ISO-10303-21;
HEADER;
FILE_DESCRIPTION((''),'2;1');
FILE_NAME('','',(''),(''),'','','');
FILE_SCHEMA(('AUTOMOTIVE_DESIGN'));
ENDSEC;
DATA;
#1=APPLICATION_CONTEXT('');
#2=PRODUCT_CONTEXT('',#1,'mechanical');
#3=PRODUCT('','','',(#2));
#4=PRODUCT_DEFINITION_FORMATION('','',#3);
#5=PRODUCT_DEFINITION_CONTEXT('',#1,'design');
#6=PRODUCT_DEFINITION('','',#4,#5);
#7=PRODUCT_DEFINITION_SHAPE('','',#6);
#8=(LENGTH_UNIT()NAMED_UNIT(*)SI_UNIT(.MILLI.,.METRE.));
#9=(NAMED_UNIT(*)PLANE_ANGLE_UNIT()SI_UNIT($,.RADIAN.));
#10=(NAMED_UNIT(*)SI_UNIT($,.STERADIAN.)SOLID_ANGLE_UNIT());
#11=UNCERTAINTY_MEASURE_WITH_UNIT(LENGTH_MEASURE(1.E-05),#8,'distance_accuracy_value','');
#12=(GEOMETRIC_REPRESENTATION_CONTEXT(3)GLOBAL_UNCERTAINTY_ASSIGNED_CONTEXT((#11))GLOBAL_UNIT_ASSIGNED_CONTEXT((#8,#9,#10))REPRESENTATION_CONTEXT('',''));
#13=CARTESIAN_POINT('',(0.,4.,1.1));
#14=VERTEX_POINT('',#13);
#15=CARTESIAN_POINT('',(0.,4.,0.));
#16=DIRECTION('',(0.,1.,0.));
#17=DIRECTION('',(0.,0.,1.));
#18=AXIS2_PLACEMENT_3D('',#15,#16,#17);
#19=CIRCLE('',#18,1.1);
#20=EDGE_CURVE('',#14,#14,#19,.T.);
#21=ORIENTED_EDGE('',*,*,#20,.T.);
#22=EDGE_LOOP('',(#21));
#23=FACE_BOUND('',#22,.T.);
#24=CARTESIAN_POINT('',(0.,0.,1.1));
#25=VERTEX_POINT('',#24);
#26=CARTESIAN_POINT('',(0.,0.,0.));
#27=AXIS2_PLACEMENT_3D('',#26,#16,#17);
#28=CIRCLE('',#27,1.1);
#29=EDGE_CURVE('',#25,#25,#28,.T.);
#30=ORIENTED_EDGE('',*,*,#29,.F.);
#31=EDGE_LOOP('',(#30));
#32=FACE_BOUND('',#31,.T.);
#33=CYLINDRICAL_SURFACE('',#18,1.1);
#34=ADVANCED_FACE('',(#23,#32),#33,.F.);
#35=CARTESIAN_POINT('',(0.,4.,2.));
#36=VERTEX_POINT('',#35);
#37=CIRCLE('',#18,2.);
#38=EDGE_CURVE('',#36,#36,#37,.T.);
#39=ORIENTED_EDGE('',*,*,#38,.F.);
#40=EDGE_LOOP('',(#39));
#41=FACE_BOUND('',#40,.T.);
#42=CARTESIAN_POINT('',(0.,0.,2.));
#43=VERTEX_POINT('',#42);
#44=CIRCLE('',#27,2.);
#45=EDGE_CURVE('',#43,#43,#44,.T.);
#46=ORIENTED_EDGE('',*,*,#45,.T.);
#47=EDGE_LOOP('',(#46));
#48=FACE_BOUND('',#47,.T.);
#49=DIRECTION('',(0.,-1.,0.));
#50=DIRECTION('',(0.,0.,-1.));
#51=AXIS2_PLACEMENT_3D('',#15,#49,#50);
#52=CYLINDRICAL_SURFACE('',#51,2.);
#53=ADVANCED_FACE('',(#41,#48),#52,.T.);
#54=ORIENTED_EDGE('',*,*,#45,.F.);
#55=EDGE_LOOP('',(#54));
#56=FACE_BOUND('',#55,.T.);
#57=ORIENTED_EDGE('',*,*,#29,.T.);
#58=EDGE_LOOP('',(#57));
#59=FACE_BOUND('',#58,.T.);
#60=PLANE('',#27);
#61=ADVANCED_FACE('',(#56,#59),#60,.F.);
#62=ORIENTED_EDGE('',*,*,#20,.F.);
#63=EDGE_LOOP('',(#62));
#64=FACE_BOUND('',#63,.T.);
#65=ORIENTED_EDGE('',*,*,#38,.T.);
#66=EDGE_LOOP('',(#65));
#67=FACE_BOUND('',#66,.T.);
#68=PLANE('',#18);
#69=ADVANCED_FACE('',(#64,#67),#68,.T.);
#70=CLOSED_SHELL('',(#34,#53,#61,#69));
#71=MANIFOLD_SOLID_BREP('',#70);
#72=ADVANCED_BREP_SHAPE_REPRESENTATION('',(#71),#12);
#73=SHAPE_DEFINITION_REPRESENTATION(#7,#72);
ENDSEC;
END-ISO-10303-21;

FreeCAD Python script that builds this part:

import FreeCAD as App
import Part
import Sketcher

doc = App.newDocument("Part")
body = doc.addObject("PartDesign::Body", "Body")

# Sketch on XZ plane
sketch1 = body.newObject("Sketcher::SketchObject", "Sketch")
sketch1.AttachmentSupport = (doc.getObject("XZ_Plane"), [""])
sketch1.MapMode = "FlatFace"
sketch1.addGeometry(Part.Circle(App.Vector(0, 0, 0), App.Vector(0, 0, 1), 2), False)
sketch1.addConstraint([
    Sketcher.Constraint("Coincident", 0, 3, -1, 1),
    Sketcher.Constraint("Diameter", 0, 4.0),
])
pad1 = body.newObject("PartDesign::Pad", "Pad")
pad1.Profile = sketch1
pad1.Length = 4
pad1.Reversed = True

# Sketch on XZ plane
sketch2 = body.newObject("Sketcher::SketchObject", "Sketch001")
sketch2.AttachmentSupport = (doc.getObject("XZ_Plane"), [""])
sketch2.MapMode = "FlatFace"
sketch2.AttachmentOffset = App.Placement(App.Vector(0, 0, -4), App.Rotation())
sketch2.addGeometry(Part.Circle(App.Vector(0, 0, 0), App.Vector(0, 0, 1), 1.1), False)
sketch2.addConstraint([
    Sketcher.Constraint("Coincident", 0, 3, -1, 1),
    Sketcher.Constraint("Diameter", 0, 2.2),
])
doc.recompute()
hole = body.newObject("PartDesign::Hole", "Hole")
hole.Profile = sketch2
hole.ThreadType = "None"
hole.Diameter = 2.2
hole.DepthType = "Dimension"
hole.Depth = 20
hole.DrillPoint = "Angled"
hole.DrillPointAngle = 118
hole.Reversed = True

doc.recompute()
